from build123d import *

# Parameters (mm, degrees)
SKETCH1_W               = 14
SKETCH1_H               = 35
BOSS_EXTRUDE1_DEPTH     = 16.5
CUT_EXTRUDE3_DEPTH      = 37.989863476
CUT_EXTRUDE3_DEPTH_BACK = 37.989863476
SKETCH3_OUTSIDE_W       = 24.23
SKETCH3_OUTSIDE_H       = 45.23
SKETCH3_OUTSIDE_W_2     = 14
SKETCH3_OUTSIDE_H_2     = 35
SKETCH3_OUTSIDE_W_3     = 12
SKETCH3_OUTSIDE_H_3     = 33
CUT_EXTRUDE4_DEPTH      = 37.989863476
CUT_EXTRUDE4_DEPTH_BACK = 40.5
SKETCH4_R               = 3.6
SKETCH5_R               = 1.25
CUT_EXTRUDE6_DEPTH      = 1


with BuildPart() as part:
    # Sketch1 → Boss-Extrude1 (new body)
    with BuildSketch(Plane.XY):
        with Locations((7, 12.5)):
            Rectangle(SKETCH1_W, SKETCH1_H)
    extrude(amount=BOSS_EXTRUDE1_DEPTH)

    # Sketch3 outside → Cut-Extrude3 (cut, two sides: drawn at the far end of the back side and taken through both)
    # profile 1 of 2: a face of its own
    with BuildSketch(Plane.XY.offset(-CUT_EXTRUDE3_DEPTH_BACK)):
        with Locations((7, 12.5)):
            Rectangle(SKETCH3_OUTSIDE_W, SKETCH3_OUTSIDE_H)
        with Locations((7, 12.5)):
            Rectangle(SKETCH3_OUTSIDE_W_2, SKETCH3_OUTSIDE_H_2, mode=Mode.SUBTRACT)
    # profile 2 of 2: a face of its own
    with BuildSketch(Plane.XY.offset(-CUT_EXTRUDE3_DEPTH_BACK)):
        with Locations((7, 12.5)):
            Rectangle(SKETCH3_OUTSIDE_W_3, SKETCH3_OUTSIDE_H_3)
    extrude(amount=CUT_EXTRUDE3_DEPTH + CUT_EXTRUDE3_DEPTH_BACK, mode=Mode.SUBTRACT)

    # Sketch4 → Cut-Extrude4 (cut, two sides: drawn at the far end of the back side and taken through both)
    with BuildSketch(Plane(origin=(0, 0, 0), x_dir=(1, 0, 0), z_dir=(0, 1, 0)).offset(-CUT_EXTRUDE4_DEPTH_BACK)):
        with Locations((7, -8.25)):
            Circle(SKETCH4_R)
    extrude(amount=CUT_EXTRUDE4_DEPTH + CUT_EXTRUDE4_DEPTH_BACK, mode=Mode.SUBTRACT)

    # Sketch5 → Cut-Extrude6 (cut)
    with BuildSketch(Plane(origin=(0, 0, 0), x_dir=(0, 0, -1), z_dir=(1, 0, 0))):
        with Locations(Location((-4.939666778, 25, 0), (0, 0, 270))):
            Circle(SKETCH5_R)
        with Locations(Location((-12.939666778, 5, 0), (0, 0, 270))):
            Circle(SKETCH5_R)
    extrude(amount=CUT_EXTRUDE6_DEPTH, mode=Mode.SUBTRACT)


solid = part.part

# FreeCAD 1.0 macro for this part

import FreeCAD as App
import Part
import Sketcher
from FreeCAD import Vector

doc = App.newDocument("Part")
params = doc.addObject("Spreadsheet::Sheet", "Params")
for row, (alias, value) in enumerate([
    ("sketch1_width", "14 mm"),
    ("sketch1_height", "35 mm"),
    ("pad1_length", "16.5 mm"),
    ("sketch2_width", "14 mm"),
    ("sketch2_width2", "12 mm"),
    ("sketch2_height", "35 mm"),
    ("sketch2_height2", "33 mm"),
    ("sketch2_width3", "24.23 mm"),
    ("sketch3_diameter", "7.2 mm"),
    ("sketch4_diameter", "2.5 mm"),
    ("pocket3_length", "1 mm"),
], start=1):
    params.set(f"A{row}", alias)
    params.set(f"B{row}", "=" + value)
    params.setAlias(f"B{row}", alias)

body = doc.addObject("PartDesign::Body", "Body")

sketch1 = body.newObject("Sketcher::SketchObject", "Sketch")
sketch1.AttachmentSupport = (doc.getObject("XY_Plane"), [""])
sketch1.MapMode = "FlatFace"
sketch1.addGeometry([
    Part.LineSegment(Vector(0, 30, 0), Vector(0, -5, 0)),
    Part.LineSegment(Vector(0, -5, 0), Vector(14, -5, 0)),
    Part.LineSegment(Vector(14, -5, 0), Vector(14, 30, 0)),
    Part.LineSegment(Vector(14, 30, 0), Vector(0, 30, 0)),
], False)
sketch1.addConstraint([
    Sketcher.Constraint("Coincident", 0, 2, 1, 1),
    Sketcher.Constraint("Coincident", 1, 2, 2, 1),
    Sketcher.Constraint("Coincident", 2, 2, 3, 1),
    Sketcher.Constraint("Coincident", 3, 2, 0, 1),
    Sketcher.Constraint("Vertical", 0),
    Sketcher.Constraint("Horizontal", 1),
    Sketcher.Constraint("Vertical", 2),
    Sketcher.Constraint("Horizontal", 3),
    Sketcher.Constraint("PointOnObject", 0, 2, -2),
    Sketcher.Constraint("DistanceX", 1, 1, 1, 2, 14.0),
    Sketcher.Constraint("DistanceY", 0, 2, 0, 1, 35.0),
    Sketcher.Constraint("DistanceY", 0, 2, -1, 1, 5.0),
])
sketch1.setExpression("Constraints[9]", "Params.sketch1_width")
sketch1.setExpression("Constraints[10]", "Params.sketch1_height")
pad1 = body.newObject("PartDesign::Pad", "Pad")
pad1.Profile = sketch1
pad1.setExpression("Length", "Params.pad1_length")

sketch2 = body.newObject("Sketcher::SketchObject", "Sketch001")
sketch2.AttachmentSupport = (doc.getObject("XY_Plane"), [""])
sketch2.MapMode = "FlatFace"
sketch2.addGeometry([
    Part.LineSegment(Vector(-5.115, 35.115, 0), Vector(-5.115, -10.115, 0)),
    Part.LineSegment(Vector(-5.115, -10.115, 0), Vector(19.115, -10.115, 0)),
    Part.LineSegment(Vector(19.115, -10.115, 0), Vector(19.115, 35.115, 0)),
    Part.LineSegment(Vector(19.115, 35.115, 0), Vector(-5.115, 35.115, 0)),
    Part.LineSegment(Vector(14, -5, 0), Vector(0, -5, 0)),
    Part.LineSegment(Vector(0, -5, 0), Vector(0, 30, 0)),
    Part.LineSegment(Vector(0, 30, 0), Vector(14, 30, 0)),
    Part.LineSegment(Vector(14, 30, 0), Vector(14, -5, 0)),
    Part.LineSegment(Vector(1, 29, 0), Vector(1, -4, 0)),
    Part.LineSegment(Vector(1, -4, 0), Vector(13, -4, 0)),
    Part.LineSegment(Vector(13, -4, 0), Vector(13, 29, 0)),
    Part.LineSegment(Vector(13, 29, 0), Vector(1, 29, 0)),
], False)
sketch2.addConstraint([
    Sketcher.Constraint("Coincident", 0, 2, 1, 1),
    Sketcher.Constraint("Coincident", 1, 2, 2, 1),
    Sketcher.Constraint("Coincident", 2, 2, 3, 1),
    Sketcher.Constraint("Coincident", 3, 2, 0, 1),
    Sketcher.Constraint("Coincident", 4, 2, 5, 1),
    Sketcher.Constraint("Coincident", 5, 2, 6, 1),
    Sketcher.Constraint("Coincident", 6, 2, 7, 1),
    Sketcher.Constraint("Coincident", 7, 2, 4, 1),
    Sketcher.Constraint("Coincident", 8, 2, 9, 1),
    Sketcher.Constraint("Coincident", 9, 2, 10, 1),
    Sketcher.Constraint("Coincident", 10, 2, 11, 1),
    Sketcher.Constraint("Coincident", 11, 2, 8, 1),
    Sketcher.Constraint("Vertical", 0),
    Sketcher.Constraint("Horizontal", 1),
    Sketcher.Constraint("Vertical", 2),
    Sketcher.Constraint("Horizontal", 3),
    Sketcher.Constraint("Horizontal", 4),
    Sketcher.Constraint("Vertical", 5),
    Sketcher.Constraint("Horizontal", 6),
    Sketcher.Constraint("Vertical", 7),
    Sketcher.Constraint("Vertical", 8),
    Sketcher.Constraint("Horizontal", 9),
    Sketcher.Constraint("Vertical", 10),
    Sketcher.Constraint("Horizontal", 11),
    Sketcher.Constraint("PointOnObject", 4, 2, -2),
    Sketcher.Constraint("DistanceX", 4, 2, 4, 1, 14.0),
    Sketcher.Constraint("DistanceX", 9, 1, 9, 2, 12.0),
    Sketcher.Constraint("DistanceY", 5, 1, 5, 2, 35.0),
    Sketcher.Constraint("DistanceY", 8, 2, 8, 1, 33.0),
    Sketcher.Constraint("DistanceY", 4, 2, -1, 1, 5.0),
    Sketcher.Constraint("DistanceX", -1, 1, 8, 2, 1.0),
    Sketcher.Constraint("DistanceY", 8, 2, -1, 1, 4.0),
    Sketcher.Constraint("DistanceX", 1, 1, 1, 2, 24.23),
    Sketcher.Constraint("DistanceY", 0, 2, 0, 1, 45.23),
    Sketcher.Constraint("DistanceX", 0, 2, -1, 1, 5.115),
    Sketcher.Constraint("DistanceY", 0, 2, -1, 1, 10.115),
])
sketch2.setExpression("Constraints[25]", "Params.sketch2_width")
sketch2.setExpression("Constraints[26]", "Params.sketch2_width2")
sketch2.setExpression("Constraints[27]", "Params.sketch2_height")
sketch2.setExpression("Constraints[28]", "Params.sketch2_height2")
sketch2.setExpression("Constraints[32]", "Params.sketch2_width3")
pocket1 = body.newObject("PartDesign::Pocket", "Pocket")
pocket1.Profile = sketch2
pocket1.Type = "ThroughAll"
pocket1.Midplane = True

sketch3 = body.newObject("Sketcher::SketchObject", "Sketch002")
sketch3.AttachmentSupport = (doc.getObject("XZ_Plane"), [""])
sketch3.MapMode = "FlatFace"
sketch3.addGeometry(Part.Circle(Vector(7, 8.25, 0), Vector(0, 0, 1), 3.6), False)
sketch3.addConstraint([
    Sketcher.Constraint("Diameter", 0, 7.2),
    Sketcher.Constraint("DistanceX", -1, 1, 0, 3, 7.0),
    Sketcher.Constraint("DistanceY", -1, 1, 0, 3, 8.25),
])
sketch3.setExpression("Constraints[0]", "Params.sketch3_diameter")
pocket2 = body.newObject("PartDesign::Pocket", "Pocket001")
pocket2.Profile = sketch3
pocket2.Type = "ThroughAll"
pocket2.Midplane = True

sketch4 = body.newObject("Sketcher::SketchObject", "Sketch003")
sketch4.AttachmentSupport = (doc.getObject("YZ_Plane"), [""])
sketch4.MapMode = "FlatFace"
sketch4.addGeometry([
    Part.Circle(Vector(25, 4.939667, 0), Vector(0, 0, 1), 1.25),
    Part.Circle(Vector(5, 12.939667, 0), Vector(0, 0, 1), 1.25),
], False)
sketch4.addConstraint([
    Sketcher.Constraint("Equal", 0, 1),
    Sketcher.Constraint("Diameter", 0, 2.5),
    Sketcher.Constraint("DistanceX", -1, 1, 0, 3, 25.0),
    Sketcher.Constraint("DistanceX", -1, 1, 1, 3, 5.0),
    Sketcher.Constraint("DistanceY", 0, 3, 1, 3, 8.0),
    Sketcher.Constraint("DistanceY", -1, 1, 0, 3, 4.939667),
])
sketch4.setExpression("Constraints[1]", "Params.sketch4_diameter")
pocket3 = body.newObject("PartDesign::Pocket", "Pocket002")
pocket3.Profile = sketch4
pocket3.setExpression("Length", "Params.pocket3_length")
pocket3.Reversed = True

doc.recompute()
